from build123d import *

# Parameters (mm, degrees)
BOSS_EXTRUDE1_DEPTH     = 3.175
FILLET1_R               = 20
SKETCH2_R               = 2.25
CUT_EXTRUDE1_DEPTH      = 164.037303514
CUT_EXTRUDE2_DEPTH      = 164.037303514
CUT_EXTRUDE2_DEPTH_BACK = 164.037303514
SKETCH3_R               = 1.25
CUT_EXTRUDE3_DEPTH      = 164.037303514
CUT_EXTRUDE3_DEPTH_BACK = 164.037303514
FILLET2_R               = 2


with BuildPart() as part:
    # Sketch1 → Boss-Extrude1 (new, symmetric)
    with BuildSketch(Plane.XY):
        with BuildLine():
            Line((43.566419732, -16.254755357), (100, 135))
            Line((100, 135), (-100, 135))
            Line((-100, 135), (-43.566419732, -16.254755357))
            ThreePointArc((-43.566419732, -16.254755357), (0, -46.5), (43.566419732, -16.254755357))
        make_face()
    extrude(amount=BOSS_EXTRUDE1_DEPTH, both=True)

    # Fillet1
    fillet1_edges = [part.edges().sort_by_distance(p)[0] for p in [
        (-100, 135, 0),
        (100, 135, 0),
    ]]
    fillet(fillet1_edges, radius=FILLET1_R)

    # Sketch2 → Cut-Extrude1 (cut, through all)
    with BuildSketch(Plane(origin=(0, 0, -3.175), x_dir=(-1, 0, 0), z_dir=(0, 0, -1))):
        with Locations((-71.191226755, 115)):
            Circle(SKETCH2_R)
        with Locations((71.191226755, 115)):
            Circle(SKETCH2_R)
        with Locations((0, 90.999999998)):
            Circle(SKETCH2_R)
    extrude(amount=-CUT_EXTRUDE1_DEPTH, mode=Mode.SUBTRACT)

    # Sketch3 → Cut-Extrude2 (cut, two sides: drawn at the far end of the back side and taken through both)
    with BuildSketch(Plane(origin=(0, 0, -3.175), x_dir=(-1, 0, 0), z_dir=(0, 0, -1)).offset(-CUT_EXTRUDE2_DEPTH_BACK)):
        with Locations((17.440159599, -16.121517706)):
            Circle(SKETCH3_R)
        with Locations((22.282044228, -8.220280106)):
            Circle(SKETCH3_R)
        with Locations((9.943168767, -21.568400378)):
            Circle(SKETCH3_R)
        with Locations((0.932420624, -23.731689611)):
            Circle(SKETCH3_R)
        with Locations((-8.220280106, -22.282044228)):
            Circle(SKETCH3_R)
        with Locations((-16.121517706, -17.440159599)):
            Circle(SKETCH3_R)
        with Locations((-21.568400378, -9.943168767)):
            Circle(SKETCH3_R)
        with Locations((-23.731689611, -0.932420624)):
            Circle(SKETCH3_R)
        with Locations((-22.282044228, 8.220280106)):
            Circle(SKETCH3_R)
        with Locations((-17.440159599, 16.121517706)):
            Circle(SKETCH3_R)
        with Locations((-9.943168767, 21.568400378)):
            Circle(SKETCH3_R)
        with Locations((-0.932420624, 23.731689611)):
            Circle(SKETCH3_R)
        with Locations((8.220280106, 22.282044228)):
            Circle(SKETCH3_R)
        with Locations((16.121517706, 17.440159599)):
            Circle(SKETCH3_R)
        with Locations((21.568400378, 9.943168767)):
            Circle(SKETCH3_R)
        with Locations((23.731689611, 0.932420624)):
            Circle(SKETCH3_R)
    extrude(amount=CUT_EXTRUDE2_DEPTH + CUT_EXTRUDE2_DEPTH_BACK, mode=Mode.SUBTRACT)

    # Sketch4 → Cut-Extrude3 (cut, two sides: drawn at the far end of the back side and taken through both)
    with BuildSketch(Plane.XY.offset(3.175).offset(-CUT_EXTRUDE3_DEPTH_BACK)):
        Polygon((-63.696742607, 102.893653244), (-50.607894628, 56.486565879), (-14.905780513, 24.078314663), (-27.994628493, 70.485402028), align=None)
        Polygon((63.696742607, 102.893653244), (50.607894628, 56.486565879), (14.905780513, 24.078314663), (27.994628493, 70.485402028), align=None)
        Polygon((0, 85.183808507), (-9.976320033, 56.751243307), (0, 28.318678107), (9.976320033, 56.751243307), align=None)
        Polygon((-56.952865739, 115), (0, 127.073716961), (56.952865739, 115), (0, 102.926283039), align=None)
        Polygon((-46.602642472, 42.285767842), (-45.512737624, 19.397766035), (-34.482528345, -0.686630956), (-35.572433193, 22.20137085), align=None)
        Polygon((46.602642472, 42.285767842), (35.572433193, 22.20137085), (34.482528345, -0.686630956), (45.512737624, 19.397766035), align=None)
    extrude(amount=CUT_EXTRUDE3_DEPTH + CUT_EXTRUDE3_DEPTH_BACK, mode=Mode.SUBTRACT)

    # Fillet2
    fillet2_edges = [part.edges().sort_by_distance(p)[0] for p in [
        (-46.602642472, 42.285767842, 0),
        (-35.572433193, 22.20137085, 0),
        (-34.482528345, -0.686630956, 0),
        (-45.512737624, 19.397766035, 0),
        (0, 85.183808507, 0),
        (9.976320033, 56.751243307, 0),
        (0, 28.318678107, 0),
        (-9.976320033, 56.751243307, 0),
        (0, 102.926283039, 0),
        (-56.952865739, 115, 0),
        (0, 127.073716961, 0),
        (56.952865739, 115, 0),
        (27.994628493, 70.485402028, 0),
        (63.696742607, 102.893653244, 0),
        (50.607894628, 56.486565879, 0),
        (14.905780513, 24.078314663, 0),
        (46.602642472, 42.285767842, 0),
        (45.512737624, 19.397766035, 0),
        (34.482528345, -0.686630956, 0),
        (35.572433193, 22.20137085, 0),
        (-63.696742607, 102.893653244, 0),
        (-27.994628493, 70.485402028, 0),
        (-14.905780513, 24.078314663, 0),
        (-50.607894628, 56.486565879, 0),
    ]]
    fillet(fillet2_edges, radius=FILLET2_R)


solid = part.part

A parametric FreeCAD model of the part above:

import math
import FreeCAD as App
import Part
import Sketcher


def edges_at(feature, points):
    """Names of the edges that pass closest to the given points."""
    edges = feature.Shape.Edges
    near = lambda p: min(range(len(edges)), key=lambda i: edges[i].distToShape(Part.Vertex(*p))[0])
    return sorted({f"Edge{near(p) + 1}" for p in points})

doc = App.newDocument("Part")
body = doc.addObject("PartDesign::Body", "Body")

# Sketch on XY plane
sketch1 = body.newObject("Sketcher::SketchObject", "Sketch")
sketch1.AttachmentSupport = (doc.getObject("XY_Plane"), [""])
sketch1.MapMode = "FlatFace"
sketch1.addGeometry([
    Part.LineSegment(App.Vector(44, -16, 0), App.Vector(100, 135, 0)),
    Part.LineSegment(App.Vector(100, 135, 0), App.Vector(-100, 135, 0)),
    Part.LineSegment(App.Vector(-100, 135, 0), App.Vector(-44, -16, 0)),
    Part.ArcOfCircle(Part.Circle(App.Vector(0, 0, 0), App.Vector(0, 0, 1), 46), math.radians(-160), math.radians(-20)),
], False)
sketch1.addConstraint([
    Sketcher.Constraint("Coincident", 0, 2, 1, 1),
    Sketcher.Constraint("Coincident", 1, 2, 2, 1),
    Sketcher.Constraint("Tangent", 2, 2, 3, 1),
    Sketcher.Constraint("Tangent", 3, 2, 0, 1),
    Sketcher.Constraint("Horizontal", 1),
    Sketcher.Constraint("Coincident", 3, 3, -1, 1),
    Sketcher.Constraint("Horizontal", 2, 2, 3, 2),
    Sketcher.Constraint("Radius", 3, 46.5),
    Sketcher.Constraint("DistanceX", 1, 2, 1, 1, 200.0),
    Sketcher.Constraint("DistanceY", -1, 1, 0, 2, 135.0),
])
pad1 = body.newObject("PartDesign::Pad", "Pad")
pad1.Profile = sketch1
pad1.Length = 6.35
pad1.Midplane = True
doc.recompute()

fillet = body.newObject("PartDesign::Fillet", "Fillet")
fillet.Base = (pad1, edges_at(pad1, [(-100, 135, 0), (100, 135, 0)]))
fillet.Radius = 20

# Sketch on XY plane
sketch2 = body.newObject("Sketcher::SketchObject", "Sketch001")
sketch2.AttachmentSupport = (doc.getObject("XY_Plane"), [""])
sketch2.MapMode = "FlatFace"
sketch2.AttachmentOffset = App.Placement(App.Vector(0, 0, -3.175), App.Rotation())
sketch2.addGeometry([
    Part.Circle(App.Vector(71.2, 115, 0), App.Vector(0, 0, 1), 2.2),
    Part.Circle(App.Vector(-71.2, 115, 0), App.Vector(0, 0, 1), 2.2),
    Part.Circle(App.Vector(0, 91, 0), App.Vector(0, 0, 1), 2.2),
], False)
sketch2.addConstraint([
    Sketcher.Constraint("Equal", 0, 1),
    Sketcher.Constraint("Equal", 1, 2),
    Sketcher.Constraint("Symmetric", 0, 3, 1, 3, -2),
    Sketcher.Constraint("PointOnObject", 2, 3, -2),
    Sketcher.Constraint("Diameter", 0, 4.5),
    Sketcher.Constraint("DistanceY", -1, 1, 0, 3, 115.0),
    Sketcher.Constraint("DistanceY", -1, 1, 2, 3, 91.0),
    Sketcher.Constraint("DistanceX", -1, 1, 0, 3, 71.191227),
])
pocket1 = body.newObject("PartDesign::Pocket", "Pocket")
pocket1.Profile = sketch2
pocket1.Type = "ThroughAll"
pocket1.Reversed = True

# Sketch on XY plane
sketch3 = body.newObject("Sketcher::SketchObject", "Sketch002")
sketch3.AttachmentSupport = (doc.getObject("XY_Plane"), [""])
sketch3.MapMode = "FlatFace"
sketch3.AttachmentOffset = App.Placement(App.Vector(0, 0, -3.175), App.Rotation())
sketch3.addGeometry([
    Part.Circle(App.Vector(-17.4, -16.1, 0), App.Vector(0, 0, 1), 1.2),  # 0
    Part.Circle(App.Vector(-22.3, -8.2, 0), App.Vector(0, 0, 1), 1.2),  # 1
    Part.Circle(App.Vector(-9.9, -21.6, 0), App.Vector(0, 0, 1), 1.2),  # 2
    Part.Circle(App.Vector(-0.9, -23.7, 0), App.Vector(0, 0, 1), 1.2),  # 3
    Part.Circle(App.Vector(8.2, -22.3, 0), App.Vector(0, 0, 1), 1.2),  # 4
    Part.Circle(App.Vector(16.1, -17.4, 0), App.Vector(0, 0, 1), 1.2),  # 5
    Part.Circle(App.Vector(21.6, -9.9, 0), App.Vector(0, 0, 1), 1.2),  # 6
    Part.Circle(App.Vector(23.7, -0.9, 0), App.Vector(0, 0, 1), 1.2),  # 7
    Part.Circle(App.Vector(22.3, 8.2, 0), App.Vector(0, 0, 1), 1.2),  # 8
    Part.Circle(App.Vector(17.4, 16.1, 0), App.Vector(0, 0, 1), 1.2),  # 9
    Part.Circle(App.Vector(9.9, 21.6, 0), App.Vector(0, 0, 1), 1.2),  # 10
    Part.Circle(App.Vector(0.9, 23.7, 0), App.Vector(0, 0, 1), 1.2),  # 11
    Part.Circle(App.Vector(-8.2, 22.3, 0), App.Vector(0, 0, 1), 1.2),  # 12
    Part.Circle(App.Vector(-16.1, 17.4, 0), App.Vector(0, 0, 1), 1.2),  # 13
    Part.Circle(App.Vector(-21.6, 9.9, 0), App.Vector(0, 0, 1), 1.2),  # 14
    Part.Circle(App.Vector(-23.7, 0.9, 0), App.Vector(0, 0, 1), 1.2),  # 15
], False)
sketch3.addConstraint([
    Sketcher.Constraint("Equal", 0, 1),
    Sketcher.Constraint("Equal", 1, 2),
    Sketcher.Constraint("Equal", 2, 3),
    Sketcher.Constraint("Equal", 3, 4),
    Sketcher.Constraint("Equal", 4, 5),
    Sketcher.Constraint("Equal", 5, 6),
    Sketcher.Constraint("Equal", 6, 7),
    Sketcher.Constraint("Equal", 7, 8),
    Sketcher.Constraint("Equal", 8, 9),
    Sketcher.Constraint("Equal", 9, 10),
    Sketcher.Constraint("Equal", 10, 11),
    Sketcher.Constraint("Equal", 11, 12),
    Sketcher.Constraint("Equal", 12, 13),
    Sketcher.Constraint("Equal", 13, 14),
    Sketcher.Constraint("Equal", 14, 15),
    Sketcher.Constraint("Symmetric", 1, 3, 8, 3, -1, 1),
    Sketcher.Constraint("Symmetric", 0, 3, 9, 3, -1, 1),
    Sketcher.Constraint("Symmetric", 2, 3, 10, 3, -1, 1),
    Sketcher.Constraint("Symmetric", 3, 3, 11, 3, -1, 1),
    Sketcher.Constraint("Symmetric", 4, 3, 12, 3, -1, 1),
    Sketcher.Constraint("Symmetric", 5, 3, 13, 3, -1, 1),
    Sketcher.Constraint("Symmetric", 6, 3, 14, 3, -1, 1),
    Sketcher.Constraint("Symmetric", 7, 3, 15, 3, -1, 1),
    Sketcher.Constraint("Diameter", 0, 2.5),
    Sketcher.Constraint("DistanceY", 2, 3, -1, 1, 21.5684),
    Sketcher.Constraint("DistanceX", -1, 1, 6, 3, 21.5684),
    Sketcher.Constraint("DistanceX", 3, 3, 4, 3, 9.152701),
    Sketcher.Constraint("DistanceY", 7, 3, 8, 3, 9.152701),
    Sketcher.Constraint("DistanceX", 0, 3, -1, 1, 17.44016),
    Sketcher.Constraint("DistanceY", 1, 3, -1, 1, 8.22028),
    Sketcher.Constraint("DistanceX", 2, 3, -1, 1, 9.943169),
    Sketcher.Constraint("DistanceX", 3, 3, -1, 1, 0.932421),
    Sketcher.Constraint("DistanceY", 3, 3, -1, 1, 23.73169),
    Sketcher.Constraint("DistanceY", 5, 3, -1, 1, 17.44016),
    Sketcher.Constraint("DistanceY", 6, 3, -1, 1, 9.943169),
    Sketcher.Constraint("DistanceX", -1, 1, 7, 3, 23.73169),
    Sketcher.Constraint("DistanceY", 3, 3, 0, 3, 7.610172),
    Sketcher.Constraint("DistanceX", 3, 3, 5, 3, 17.053938),
    Sketcher.Constraint("DistanceX", 1, 3, 5, 3, 38.403562),
    Sketcher.Constraint("DistanceY", 4, 3, 9, 3, 38.403562),
])
pocket2 = body.newObject("PartDesign::Pocket", "Pocket001")
pocket2.Profile = sketch3
pocket2.Type = "ThroughAll"
pocket2.Midplane = True

# Sketch on XY plane
sketch4 = body.newObject("Sketcher::SketchObject", "Sketch003")
sketch4.AttachmentSupport = (doc.getObject("XY_Plane"), [""])
sketch4.MapMode = "FlatFace"
sketch4.AttachmentOffset = App.Placement(App.Vector(0, 0, 3.175), App.Rotation())
sketch4.addGeometry([
    Part.LineSegment(App.Vector(-64, 103, 0), App.Vector(-51, 56, 0)),  # 0
    Part.LineSegment(App.Vector(-51, 56, 0), App.Vector(-15, 24, 0)),  # 1
    Part.LineSegment(App.Vector(-15, 24, 0), App.Vector(-28, 70, 0)),  # 2
    Part.LineSegment(App.Vector(-28, 70, 0), App.Vector(-64, 103, 0)),  # 3
    Part.LineSegment(App.Vector(51, 56, 0), App.Vector(64, 103, 0)),  # 4
    Part.LineSegment(App.Vector(64, 103, 0), App.Vector(28, 70, 0)),  # 5
    Part.LineSegment(App.Vector(28, 70, 0), App.Vector(15, 24, 0)),  # 6
    Part.LineSegment(App.Vector(15, 24, 0), App.Vector(51, 56, 0)),  # 7
    Part.LineSegment(App.Vector(0, 85, 0), App.Vector(-10, 57, 0)),  # 8
    Part.LineSegment(App.Vector(-10, 57, 0), App.Vector(0, 28, 0)),  # 9
    Part.LineSegment(App.Vector(0, 28, 0), App.Vector(10, 57, 0)),  # 10
    Part.LineSegment(App.Vector(10, 57, 0), App.Vector(0, 85, 0)),  # 11
    Part.LineSegment(App.Vector(0, 127, 0), App.Vector(-57, 115, 0)),  # 12
    Part.LineSegment(App.Vector(-57, 115, 0), App.Vector(0, 103, 0)),  # 13
    Part.LineSegment(App.Vector(0, 103, 0), App.Vector(57, 115, 0)),  # 14
    Part.LineSegment(App.Vector(57, 115, 0), App.Vector(0, 127, 0)),  # 15
    Part.LineSegment(App.Vector(-47, 42, 0), App.Vector(-46, 19, 0)),  # 16
    Part.LineSegment(App.Vector(-46, 19, 0), App.Vector(-34, -1, 0)),  # 17
    Part.LineSegment(App.Vector(-34, -1, 0), App.Vector(-36, 22, 0)),  # 18
    Part.LineSegment(App.Vector(-36, 22, 0), App.Vector(-47, 42, 0)),  # 19
    Part.LineSegment(App.Vector(47, 42, 0), App.Vector(36, 22, 0)),  # 20
    Part.LineSegment(App.Vector(36, 22, 0), App.Vector(34, -1, 0)),  # 21
    Part.LineSegment(App.Vector(34, -1, 0), App.Vector(46, 19, 0)),  # 22
    Part.LineSegment(App.Vector(46, 19, 0), App.Vector(47, 42, 0)),  # 23
], False)
sketch4.addConstraint([
    Sketcher.Constraint("Coincident", 0, 2, 1, 1),
    Sketcher.Constraint("Coincident", 1, 2, 2, 1),
    Sketcher.Constraint("Coincident", 2, 2, 3, 1),
    Sketcher.Constraint("Coincident", 3, 2, 0, 1),
    Sketcher.Constraint("Coincident", 4, 2, 5, 1),
    Sketcher.Constraint("Coincident", 5, 2, 6, 1),
    Sketcher.Constraint("Coincident", 6, 2, 7, 1),
    Sketcher.Constraint("Coincident", 7, 2, 4, 1),
    Sketcher.Constraint("Coincident", 8, 2, 9, 1),
    Sketcher.Constraint("Coincident", 9, 2, 10, 1),
    Sketcher.Constraint("Coincident", 10, 2, 11, 1),
    Sketcher.Constraint("Coincident", 11, 2, 8, 1),
    Sketcher.Constraint("Coincident", 12, 2, 13, 1),
    Sketcher.Constraint("Coincident", 13, 2, 14, 1),
    Sketcher.Constraint("Coincident", 14, 2, 15, 1),
    Sketcher.Constraint("Coincident", 15, 2, 12, 1),
    Sketcher.Constraint("Coincident", 16, 2, 17, 1),
    Sketcher.Constraint("Coincident", 17, 2, 18, 1),
    Sketcher.Constraint("Coincident", 18, 2, 19, 1),
    Sketcher.Constraint("Coincident", 19, 2, 16, 1),
    Sketcher.Constraint("Coincident", 20, 2, 21, 1),
    Sketcher.Constraint("Coincident", 21, 2, 22, 1),
    Sketcher.Constraint("Coincident", 22, 2, 23, 1),
    Sketcher.Constraint("Coincident", 23, 2, 20, 1),
    Sketcher.Constraint("Symmetric", 3, 2, 4, 2, -2),
    Sketcher.Constraint("Symmetric", 2, 2, 5, 2, -2),
    Sketcher.Constraint("Symmetric", 1, 2, 6, 2, -2),
    Sketcher.Constraint("Symmetric", 0, 2, 7, 2, -2),
    Sketcher.Constraint("Symmetric", 8, 2, 10, 2, -2),
    Sketcher.Constraint("Symmetric", 12, 2, 14, 2, -2),
    Sketcher.Constraint("Symmetric", 18, 2, 20, 2, -2),
    Sketcher.Constraint("Symmetric", 17, 2, 21, 2, -2),
    Sketcher.Constraint("Symmetric", 16, 2, 22, 2, -2),
    Sketcher.Constraint("Symmetric", 19, 2, 23, 2, -2),
    Sketcher.Constraint("PointOnObject", 9, 2, -2),
    Sketcher.Constraint("PointOnObject", 11, 2, -2),
    Sketcher.Constraint("PointOnObject", 13, 2, -2),
    Sketcher.Constraint("PointOnObject", 15, 2, -2),
    Sketcher.Constraint("Parallel", 0, 2),
    Sketcher.Constraint("Parallel", 1, 3),
    Sketcher.Constraint("Parallel", 8, 10),
    Sketcher.Constraint("Parallel", 12, 14),
    Sketcher.Constraint("Parallel", 16, 18),
    Sketcher.Constraint("Parallel", 17, 19),
    Sketcher.Constraint("Equal", 0, 1),
    Sketcher.Constraint("Equal", 16, 17),
    Sketcher.Constraint("DistanceY", -1, 1, 12, 2, 115.0),
    Sketcher.Constraint("DistanceY", 17, 2, 18, 2, 22.888002),
    Sketcher.Constraint("DistanceX", 8, 2, 6, 2, 24.882101),
    Sketcher.Constraint("DistanceY", 16, 2, 0, 2, 37.0888),
    Sketcher.Constraint("DistanceX", 1, 2, -1, 1, 14.905781),
    Sketcher.Constraint("DistanceX", 2, 2, -1, 1, 27.994628),
    Sketcher.Constraint("DistanceY", -1, 1, 9, 2, 28.318678),
    Sketcher.Constraint("DistanceY", -1, 1, 11, 2, 85.183809),
    Sketcher.Constraint("DistanceX", 17, 2, -1, 1, 34.482528),
    Sketcher.Constraint("DistanceY", 17, 2, -1, 1, 0.686631),
    Sketcher.Constraint("DistanceY", 1, 2, 0, 2, 32.408251),
    Sketcher.Constraint("DistanceY", 1, 2, 3, 2, 78.815339),
    Sketcher.Constraint("DistanceY", 8, 2, 2, 2, 13.734159),
    Sketcher.Constraint("DistanceX", 12, 2, 0, 2, 6.344971),
    Sketcher.Constraint("DistanceY", 2, 2, 13, 2, 32.440881),
    Sketcher.Constraint("DistanceX", 16, 2, 2, 2, 17.518109),
])
pocket3 = body.newObject("PartDesign::Pocket", "Pocket002")
pocket3.Profile = sketch4
pocket3.Type = "ThroughAll"
pocket3.Midplane = True
doc.recompute()

fillet2 = body.newObject("PartDesign::Fillet", "Fillet001")
fillet2.Base = (pocket3, edges_at(pocket3, [
    (-46.603, 42.286, 0),
    (-35.572, 22.201, 0),
    (-34.483, -0.687, 0),
    (-45.513, 19.398, 0),
    (0, 85.184, 0),
    (9.976, 56.751, 0),
    (0, 28.319, 0),
    (-9.976, 56.751, 0),
    (0, 102.926, 0),
    (-56.953, 115, 0),
    (0, 127.074, 0),
    (56.953, 115, 0),
    (27.995, 70.485, 0),
    (63.697, 102.894, 0),
    (50.608, 56.487, 0),
    (14.906, 24.078, 0),
    (46.603, 42.286, 0),
    (45.513, 19.398, 0),
    (34.483, -0.687, 0),
    (35.572, 22.201, 0),
    (-63.697, 102.894, 0),
    (-27.995, 70.485, 0),
    (-14.906, 24.078, 0),
    (-50.608, 56.487, 0),
]))
fillet2.Radius = 2

doc.recompute()
